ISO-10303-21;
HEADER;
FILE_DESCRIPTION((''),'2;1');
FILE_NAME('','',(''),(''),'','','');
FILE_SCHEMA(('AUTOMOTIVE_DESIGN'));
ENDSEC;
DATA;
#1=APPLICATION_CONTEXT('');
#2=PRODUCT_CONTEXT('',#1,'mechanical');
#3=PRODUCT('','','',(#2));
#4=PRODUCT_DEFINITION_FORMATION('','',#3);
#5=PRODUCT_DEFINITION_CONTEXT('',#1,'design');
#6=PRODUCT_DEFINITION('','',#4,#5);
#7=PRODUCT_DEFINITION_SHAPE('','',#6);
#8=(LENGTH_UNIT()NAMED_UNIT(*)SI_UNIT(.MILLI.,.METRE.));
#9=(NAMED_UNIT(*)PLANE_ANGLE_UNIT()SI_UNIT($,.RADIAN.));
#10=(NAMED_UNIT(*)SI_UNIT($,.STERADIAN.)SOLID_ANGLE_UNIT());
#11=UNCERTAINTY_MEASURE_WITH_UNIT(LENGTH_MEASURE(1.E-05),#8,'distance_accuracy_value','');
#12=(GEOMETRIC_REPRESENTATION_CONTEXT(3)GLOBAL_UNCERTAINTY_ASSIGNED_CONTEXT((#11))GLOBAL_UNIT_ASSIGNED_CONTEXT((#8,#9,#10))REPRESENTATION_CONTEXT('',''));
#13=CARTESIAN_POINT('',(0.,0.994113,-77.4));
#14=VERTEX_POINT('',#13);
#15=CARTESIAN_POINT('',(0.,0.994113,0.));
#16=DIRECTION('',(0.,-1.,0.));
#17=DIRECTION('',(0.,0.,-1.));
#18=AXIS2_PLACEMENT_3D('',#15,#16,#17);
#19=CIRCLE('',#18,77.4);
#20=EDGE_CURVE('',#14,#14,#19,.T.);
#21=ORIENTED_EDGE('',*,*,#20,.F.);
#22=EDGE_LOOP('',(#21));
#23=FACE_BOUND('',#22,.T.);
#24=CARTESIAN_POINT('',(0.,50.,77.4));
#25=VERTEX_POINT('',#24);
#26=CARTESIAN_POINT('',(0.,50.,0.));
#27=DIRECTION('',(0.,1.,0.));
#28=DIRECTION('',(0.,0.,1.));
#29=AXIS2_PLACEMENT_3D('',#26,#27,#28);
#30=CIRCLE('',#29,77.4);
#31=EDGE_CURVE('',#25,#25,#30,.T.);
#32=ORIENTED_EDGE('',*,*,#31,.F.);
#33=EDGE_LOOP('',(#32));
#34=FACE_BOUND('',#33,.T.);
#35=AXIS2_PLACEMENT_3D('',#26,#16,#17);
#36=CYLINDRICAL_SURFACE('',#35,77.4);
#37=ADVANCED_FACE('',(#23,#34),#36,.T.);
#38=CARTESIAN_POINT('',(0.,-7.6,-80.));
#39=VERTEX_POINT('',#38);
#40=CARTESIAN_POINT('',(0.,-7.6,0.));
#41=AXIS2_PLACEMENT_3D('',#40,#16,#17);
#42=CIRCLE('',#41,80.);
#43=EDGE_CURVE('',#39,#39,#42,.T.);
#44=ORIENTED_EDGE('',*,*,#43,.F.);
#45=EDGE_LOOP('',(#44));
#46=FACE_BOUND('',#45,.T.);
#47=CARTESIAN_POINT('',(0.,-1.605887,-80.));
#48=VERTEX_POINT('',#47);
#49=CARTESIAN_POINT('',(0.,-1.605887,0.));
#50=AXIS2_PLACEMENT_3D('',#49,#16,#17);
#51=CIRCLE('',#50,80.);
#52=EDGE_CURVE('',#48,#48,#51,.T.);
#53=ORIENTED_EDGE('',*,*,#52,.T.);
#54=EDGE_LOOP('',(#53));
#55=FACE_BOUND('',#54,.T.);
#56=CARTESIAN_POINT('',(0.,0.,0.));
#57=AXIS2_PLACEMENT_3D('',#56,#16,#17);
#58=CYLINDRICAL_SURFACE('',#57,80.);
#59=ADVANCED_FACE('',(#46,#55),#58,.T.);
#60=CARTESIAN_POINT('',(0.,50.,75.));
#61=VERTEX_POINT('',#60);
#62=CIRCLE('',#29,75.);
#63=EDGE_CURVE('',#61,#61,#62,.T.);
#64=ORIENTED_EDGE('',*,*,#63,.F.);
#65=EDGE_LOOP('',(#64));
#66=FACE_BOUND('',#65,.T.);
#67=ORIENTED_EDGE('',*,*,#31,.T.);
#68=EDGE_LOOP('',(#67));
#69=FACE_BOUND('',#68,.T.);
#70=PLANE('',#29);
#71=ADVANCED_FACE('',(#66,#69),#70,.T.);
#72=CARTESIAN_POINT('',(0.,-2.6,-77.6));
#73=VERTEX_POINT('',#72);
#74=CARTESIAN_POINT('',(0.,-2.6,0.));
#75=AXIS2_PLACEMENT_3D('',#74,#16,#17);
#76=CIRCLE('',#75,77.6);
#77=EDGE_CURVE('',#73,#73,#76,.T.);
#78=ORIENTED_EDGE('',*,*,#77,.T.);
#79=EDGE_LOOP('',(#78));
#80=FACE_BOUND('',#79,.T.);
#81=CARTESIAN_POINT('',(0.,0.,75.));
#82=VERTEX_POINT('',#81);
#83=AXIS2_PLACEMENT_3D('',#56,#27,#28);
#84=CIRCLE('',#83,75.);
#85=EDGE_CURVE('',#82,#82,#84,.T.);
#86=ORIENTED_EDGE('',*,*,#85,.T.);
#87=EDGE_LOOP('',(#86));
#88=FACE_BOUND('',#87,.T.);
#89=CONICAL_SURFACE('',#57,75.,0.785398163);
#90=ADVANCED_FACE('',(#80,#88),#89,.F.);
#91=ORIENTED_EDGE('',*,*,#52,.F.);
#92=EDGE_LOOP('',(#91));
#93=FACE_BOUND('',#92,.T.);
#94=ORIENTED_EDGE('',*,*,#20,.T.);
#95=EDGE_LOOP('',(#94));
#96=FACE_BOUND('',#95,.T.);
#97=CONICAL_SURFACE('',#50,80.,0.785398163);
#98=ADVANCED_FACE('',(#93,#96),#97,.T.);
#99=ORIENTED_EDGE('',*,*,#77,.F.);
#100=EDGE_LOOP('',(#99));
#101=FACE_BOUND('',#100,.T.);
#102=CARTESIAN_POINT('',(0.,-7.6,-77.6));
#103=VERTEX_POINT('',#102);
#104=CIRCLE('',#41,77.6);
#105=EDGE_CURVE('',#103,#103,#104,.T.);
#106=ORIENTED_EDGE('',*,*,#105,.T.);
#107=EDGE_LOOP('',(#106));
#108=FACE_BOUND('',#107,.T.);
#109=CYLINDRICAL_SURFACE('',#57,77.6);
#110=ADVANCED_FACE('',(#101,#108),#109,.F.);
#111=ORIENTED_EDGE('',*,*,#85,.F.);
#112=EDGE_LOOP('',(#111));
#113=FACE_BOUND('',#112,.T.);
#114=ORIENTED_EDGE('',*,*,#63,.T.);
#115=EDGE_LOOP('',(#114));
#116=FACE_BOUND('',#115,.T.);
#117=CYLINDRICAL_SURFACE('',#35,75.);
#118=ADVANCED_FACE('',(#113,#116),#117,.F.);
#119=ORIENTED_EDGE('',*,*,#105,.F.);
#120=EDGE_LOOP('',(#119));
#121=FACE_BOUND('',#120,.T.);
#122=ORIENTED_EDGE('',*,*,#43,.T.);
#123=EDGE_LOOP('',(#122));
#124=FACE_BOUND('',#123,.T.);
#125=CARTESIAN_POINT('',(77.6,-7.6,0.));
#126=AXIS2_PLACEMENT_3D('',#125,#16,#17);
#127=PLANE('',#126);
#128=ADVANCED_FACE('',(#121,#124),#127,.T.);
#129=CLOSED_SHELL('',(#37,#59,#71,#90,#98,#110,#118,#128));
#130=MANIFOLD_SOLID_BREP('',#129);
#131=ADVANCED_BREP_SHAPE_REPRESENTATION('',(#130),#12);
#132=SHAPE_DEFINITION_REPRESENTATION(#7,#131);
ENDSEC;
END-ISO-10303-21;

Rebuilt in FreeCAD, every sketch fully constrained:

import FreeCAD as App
import Part
import Sketcher

V = App.Vector
Q = App.Units.Quantity

doc = App.newDocument("Part")
params = doc.addObject("Spreadsheet::Sheet", "Params")
for row, (alias, value) in enumerate([
    ("sketch1_diameter", "150 mm"),
    ("sketch1_diameter2", "154.8 mm"),
    ("pad1_length", "50 mm"),
    ("sketch2_height", "5 mm"),
    ("sketch2_width", "2.4 mm"),
    ("revolution_angle", "360 deg"),
], start=1):
    params.set(f"A{row}", alias)
    params.set(f"B{row}", "=" + value)
    params.setAlias(f"B{row}", alias)

body = doc.addObject("PartDesign::Body", "Body")

# Sketch on XZ plane
sketch1 = body.newObject("Sketcher::SketchObject", "Sketch")
sketch1.AttachmentSupport = (doc.getObject("XZ_Plane"), [""])
sketch1.MapMode = "FlatFace"
sketch1.addGeometry(Part.Circle(V(0, 0, 0), V(0, 0, 1), 77), False)
sketch1.addGeometry(Part.Circle(V(0, 0, 0), V(0, 0, 1), 75), False)
sketch1.addConstraint(Sketcher.Constraint("Coincident", 0, 3, -1, 1))
sketch1.addConstraint(Sketcher.Constraint("Coincident", 1, 3, -1, 1))
sketch1.addConstraint(Sketcher.Constraint("Diameter", 1, 150.0))
sketch1.addConstraint(Sketcher.Constraint("Diameter", 0, 154.8))
sketch1.setExpression("Constraints[2]", "Params.sketch1_diameter")
sketch1.setExpression("Constraints[3]", "Params.sketch1_diameter2")
pad1 = body.newObject("PartDesign::Pad", "Pad")
pad1.Profile = sketch1
pad1.setExpression("Length", "Params.pad1_length")
pad1.Reversed = True

# Sketch on XY plane
sketch2 = body.newObject("Sketcher::SketchObject", "Sketch001")
sketch2.AttachmentSupport = (doc.getObject("XY_Plane"), [""])
sketch2.MapMode = "FlatFace"
sketch2.addGeometry(Part.LineSegment(V(75, 0, 0), V(77.6, -2.6, 0)), False)
sketch2.addGeometry(Part.LineSegment(V(77.6, -2.6, 0), V(77.6, -7.6, 0)), False)
sketch2.addGeometry(Part.LineSegment(V(77.6, -7.6, 0), V(80, -7.6, 0)), False)
sketch2.addGeometry(Part.LineSegment(V(80, -7.6, 0), V(80, -1.6, 0)), False)
sketch2.addGeometry(Part.LineSegment(V(80, -1.6, 0), V(77.4, 1, 0)), False)
sketch2.addGeometry(Part.LineSegment(V(77.4, 1, 0), V(77.4, 0, 0)), False)
sketch2.addGeometry(Part.LineSegment(V(77.4, 0, 0), V(75, 0, 0)), False)
sketch2.addConstraint(Sketcher.Constraint("Coincident", 0, 2, 1, 1))
sketch2.addConstraint(Sketcher.Constraint("Coincident", 1, 2, 2, 1))
sketch2.addConstraint(Sketcher.Constraint("Coincident", 2, 2, 3, 1))
sketch2.addConstraint(Sketcher.Constraint("Coincident", 3, 2, 4, 1))
sketch2.addConstraint(Sketcher.Constraint("Coincident", 4, 2, 5, 1))
sketch2.addConstraint(Sketcher.Constraint("Coincident", 5, 2, 6, 1))
sketch2.addConstraint(Sketcher.Constraint("Coincident", 6, 2, 0, 1))
sketch2.addConstraint(Sketcher.Constraint("Vertical", 1))
sketch2.addConstraint(Sketcher.Constraint("Horizontal", 2))
sketch2.addConstraint(Sketcher.Constraint("Vertical", 3))
sketch2.addConstraint(Sketcher.Constraint("Vertical", 5))
sketch2.addConstraint(Sketcher.Constraint("Horizontal", 6))
sketch2.addConstraint(Sketcher.Constraint("PointOnObject", 5, 2, -1))
sketch2.addConstraint(Sketcher.Constraint("Parallel", 0, 4))
sketch2.addConstraint(Sketcher.Constraint("Equal", 2, 6))
sketch2.addConstraint(Sketcher.Constraint("DistanceY", 1, 2, 1, 1, 5.0))
sketch2.addConstraint(Sketcher.Constraint("Angle", 0, Q("-45 deg")))
sketch2.addConstraint(Sketcher.Constraint("DistanceX", 2, 1, 2, 2, 2.4))
sketch2.addConstraint(Sketcher.Constraint("DistanceX", -1, 1, 2, 2, 80.0))
sketch2.addConstraint(Sketcher.Constraint("DistanceX", -1, 1, 6, 2, 75.0))
sketch2.addConstraint(Sketcher.Constraint("DistanceY", 3, 1, 3, 2, 5.994113))
sketch2.setExpression("Constraints[15]", "Params.sketch2_height")
sketch2.setExpression("Constraints[17]", "Params.sketch2_width")
revolution = body.newObject("PartDesign::Revolution", "Revolution")
revolution.Profile = sketch2
revolution.ReferenceAxis = (sketch2, ["V_Axis"])
revolution.setExpression("Angle", "Params.revolution_angle")

doc.recompute()
